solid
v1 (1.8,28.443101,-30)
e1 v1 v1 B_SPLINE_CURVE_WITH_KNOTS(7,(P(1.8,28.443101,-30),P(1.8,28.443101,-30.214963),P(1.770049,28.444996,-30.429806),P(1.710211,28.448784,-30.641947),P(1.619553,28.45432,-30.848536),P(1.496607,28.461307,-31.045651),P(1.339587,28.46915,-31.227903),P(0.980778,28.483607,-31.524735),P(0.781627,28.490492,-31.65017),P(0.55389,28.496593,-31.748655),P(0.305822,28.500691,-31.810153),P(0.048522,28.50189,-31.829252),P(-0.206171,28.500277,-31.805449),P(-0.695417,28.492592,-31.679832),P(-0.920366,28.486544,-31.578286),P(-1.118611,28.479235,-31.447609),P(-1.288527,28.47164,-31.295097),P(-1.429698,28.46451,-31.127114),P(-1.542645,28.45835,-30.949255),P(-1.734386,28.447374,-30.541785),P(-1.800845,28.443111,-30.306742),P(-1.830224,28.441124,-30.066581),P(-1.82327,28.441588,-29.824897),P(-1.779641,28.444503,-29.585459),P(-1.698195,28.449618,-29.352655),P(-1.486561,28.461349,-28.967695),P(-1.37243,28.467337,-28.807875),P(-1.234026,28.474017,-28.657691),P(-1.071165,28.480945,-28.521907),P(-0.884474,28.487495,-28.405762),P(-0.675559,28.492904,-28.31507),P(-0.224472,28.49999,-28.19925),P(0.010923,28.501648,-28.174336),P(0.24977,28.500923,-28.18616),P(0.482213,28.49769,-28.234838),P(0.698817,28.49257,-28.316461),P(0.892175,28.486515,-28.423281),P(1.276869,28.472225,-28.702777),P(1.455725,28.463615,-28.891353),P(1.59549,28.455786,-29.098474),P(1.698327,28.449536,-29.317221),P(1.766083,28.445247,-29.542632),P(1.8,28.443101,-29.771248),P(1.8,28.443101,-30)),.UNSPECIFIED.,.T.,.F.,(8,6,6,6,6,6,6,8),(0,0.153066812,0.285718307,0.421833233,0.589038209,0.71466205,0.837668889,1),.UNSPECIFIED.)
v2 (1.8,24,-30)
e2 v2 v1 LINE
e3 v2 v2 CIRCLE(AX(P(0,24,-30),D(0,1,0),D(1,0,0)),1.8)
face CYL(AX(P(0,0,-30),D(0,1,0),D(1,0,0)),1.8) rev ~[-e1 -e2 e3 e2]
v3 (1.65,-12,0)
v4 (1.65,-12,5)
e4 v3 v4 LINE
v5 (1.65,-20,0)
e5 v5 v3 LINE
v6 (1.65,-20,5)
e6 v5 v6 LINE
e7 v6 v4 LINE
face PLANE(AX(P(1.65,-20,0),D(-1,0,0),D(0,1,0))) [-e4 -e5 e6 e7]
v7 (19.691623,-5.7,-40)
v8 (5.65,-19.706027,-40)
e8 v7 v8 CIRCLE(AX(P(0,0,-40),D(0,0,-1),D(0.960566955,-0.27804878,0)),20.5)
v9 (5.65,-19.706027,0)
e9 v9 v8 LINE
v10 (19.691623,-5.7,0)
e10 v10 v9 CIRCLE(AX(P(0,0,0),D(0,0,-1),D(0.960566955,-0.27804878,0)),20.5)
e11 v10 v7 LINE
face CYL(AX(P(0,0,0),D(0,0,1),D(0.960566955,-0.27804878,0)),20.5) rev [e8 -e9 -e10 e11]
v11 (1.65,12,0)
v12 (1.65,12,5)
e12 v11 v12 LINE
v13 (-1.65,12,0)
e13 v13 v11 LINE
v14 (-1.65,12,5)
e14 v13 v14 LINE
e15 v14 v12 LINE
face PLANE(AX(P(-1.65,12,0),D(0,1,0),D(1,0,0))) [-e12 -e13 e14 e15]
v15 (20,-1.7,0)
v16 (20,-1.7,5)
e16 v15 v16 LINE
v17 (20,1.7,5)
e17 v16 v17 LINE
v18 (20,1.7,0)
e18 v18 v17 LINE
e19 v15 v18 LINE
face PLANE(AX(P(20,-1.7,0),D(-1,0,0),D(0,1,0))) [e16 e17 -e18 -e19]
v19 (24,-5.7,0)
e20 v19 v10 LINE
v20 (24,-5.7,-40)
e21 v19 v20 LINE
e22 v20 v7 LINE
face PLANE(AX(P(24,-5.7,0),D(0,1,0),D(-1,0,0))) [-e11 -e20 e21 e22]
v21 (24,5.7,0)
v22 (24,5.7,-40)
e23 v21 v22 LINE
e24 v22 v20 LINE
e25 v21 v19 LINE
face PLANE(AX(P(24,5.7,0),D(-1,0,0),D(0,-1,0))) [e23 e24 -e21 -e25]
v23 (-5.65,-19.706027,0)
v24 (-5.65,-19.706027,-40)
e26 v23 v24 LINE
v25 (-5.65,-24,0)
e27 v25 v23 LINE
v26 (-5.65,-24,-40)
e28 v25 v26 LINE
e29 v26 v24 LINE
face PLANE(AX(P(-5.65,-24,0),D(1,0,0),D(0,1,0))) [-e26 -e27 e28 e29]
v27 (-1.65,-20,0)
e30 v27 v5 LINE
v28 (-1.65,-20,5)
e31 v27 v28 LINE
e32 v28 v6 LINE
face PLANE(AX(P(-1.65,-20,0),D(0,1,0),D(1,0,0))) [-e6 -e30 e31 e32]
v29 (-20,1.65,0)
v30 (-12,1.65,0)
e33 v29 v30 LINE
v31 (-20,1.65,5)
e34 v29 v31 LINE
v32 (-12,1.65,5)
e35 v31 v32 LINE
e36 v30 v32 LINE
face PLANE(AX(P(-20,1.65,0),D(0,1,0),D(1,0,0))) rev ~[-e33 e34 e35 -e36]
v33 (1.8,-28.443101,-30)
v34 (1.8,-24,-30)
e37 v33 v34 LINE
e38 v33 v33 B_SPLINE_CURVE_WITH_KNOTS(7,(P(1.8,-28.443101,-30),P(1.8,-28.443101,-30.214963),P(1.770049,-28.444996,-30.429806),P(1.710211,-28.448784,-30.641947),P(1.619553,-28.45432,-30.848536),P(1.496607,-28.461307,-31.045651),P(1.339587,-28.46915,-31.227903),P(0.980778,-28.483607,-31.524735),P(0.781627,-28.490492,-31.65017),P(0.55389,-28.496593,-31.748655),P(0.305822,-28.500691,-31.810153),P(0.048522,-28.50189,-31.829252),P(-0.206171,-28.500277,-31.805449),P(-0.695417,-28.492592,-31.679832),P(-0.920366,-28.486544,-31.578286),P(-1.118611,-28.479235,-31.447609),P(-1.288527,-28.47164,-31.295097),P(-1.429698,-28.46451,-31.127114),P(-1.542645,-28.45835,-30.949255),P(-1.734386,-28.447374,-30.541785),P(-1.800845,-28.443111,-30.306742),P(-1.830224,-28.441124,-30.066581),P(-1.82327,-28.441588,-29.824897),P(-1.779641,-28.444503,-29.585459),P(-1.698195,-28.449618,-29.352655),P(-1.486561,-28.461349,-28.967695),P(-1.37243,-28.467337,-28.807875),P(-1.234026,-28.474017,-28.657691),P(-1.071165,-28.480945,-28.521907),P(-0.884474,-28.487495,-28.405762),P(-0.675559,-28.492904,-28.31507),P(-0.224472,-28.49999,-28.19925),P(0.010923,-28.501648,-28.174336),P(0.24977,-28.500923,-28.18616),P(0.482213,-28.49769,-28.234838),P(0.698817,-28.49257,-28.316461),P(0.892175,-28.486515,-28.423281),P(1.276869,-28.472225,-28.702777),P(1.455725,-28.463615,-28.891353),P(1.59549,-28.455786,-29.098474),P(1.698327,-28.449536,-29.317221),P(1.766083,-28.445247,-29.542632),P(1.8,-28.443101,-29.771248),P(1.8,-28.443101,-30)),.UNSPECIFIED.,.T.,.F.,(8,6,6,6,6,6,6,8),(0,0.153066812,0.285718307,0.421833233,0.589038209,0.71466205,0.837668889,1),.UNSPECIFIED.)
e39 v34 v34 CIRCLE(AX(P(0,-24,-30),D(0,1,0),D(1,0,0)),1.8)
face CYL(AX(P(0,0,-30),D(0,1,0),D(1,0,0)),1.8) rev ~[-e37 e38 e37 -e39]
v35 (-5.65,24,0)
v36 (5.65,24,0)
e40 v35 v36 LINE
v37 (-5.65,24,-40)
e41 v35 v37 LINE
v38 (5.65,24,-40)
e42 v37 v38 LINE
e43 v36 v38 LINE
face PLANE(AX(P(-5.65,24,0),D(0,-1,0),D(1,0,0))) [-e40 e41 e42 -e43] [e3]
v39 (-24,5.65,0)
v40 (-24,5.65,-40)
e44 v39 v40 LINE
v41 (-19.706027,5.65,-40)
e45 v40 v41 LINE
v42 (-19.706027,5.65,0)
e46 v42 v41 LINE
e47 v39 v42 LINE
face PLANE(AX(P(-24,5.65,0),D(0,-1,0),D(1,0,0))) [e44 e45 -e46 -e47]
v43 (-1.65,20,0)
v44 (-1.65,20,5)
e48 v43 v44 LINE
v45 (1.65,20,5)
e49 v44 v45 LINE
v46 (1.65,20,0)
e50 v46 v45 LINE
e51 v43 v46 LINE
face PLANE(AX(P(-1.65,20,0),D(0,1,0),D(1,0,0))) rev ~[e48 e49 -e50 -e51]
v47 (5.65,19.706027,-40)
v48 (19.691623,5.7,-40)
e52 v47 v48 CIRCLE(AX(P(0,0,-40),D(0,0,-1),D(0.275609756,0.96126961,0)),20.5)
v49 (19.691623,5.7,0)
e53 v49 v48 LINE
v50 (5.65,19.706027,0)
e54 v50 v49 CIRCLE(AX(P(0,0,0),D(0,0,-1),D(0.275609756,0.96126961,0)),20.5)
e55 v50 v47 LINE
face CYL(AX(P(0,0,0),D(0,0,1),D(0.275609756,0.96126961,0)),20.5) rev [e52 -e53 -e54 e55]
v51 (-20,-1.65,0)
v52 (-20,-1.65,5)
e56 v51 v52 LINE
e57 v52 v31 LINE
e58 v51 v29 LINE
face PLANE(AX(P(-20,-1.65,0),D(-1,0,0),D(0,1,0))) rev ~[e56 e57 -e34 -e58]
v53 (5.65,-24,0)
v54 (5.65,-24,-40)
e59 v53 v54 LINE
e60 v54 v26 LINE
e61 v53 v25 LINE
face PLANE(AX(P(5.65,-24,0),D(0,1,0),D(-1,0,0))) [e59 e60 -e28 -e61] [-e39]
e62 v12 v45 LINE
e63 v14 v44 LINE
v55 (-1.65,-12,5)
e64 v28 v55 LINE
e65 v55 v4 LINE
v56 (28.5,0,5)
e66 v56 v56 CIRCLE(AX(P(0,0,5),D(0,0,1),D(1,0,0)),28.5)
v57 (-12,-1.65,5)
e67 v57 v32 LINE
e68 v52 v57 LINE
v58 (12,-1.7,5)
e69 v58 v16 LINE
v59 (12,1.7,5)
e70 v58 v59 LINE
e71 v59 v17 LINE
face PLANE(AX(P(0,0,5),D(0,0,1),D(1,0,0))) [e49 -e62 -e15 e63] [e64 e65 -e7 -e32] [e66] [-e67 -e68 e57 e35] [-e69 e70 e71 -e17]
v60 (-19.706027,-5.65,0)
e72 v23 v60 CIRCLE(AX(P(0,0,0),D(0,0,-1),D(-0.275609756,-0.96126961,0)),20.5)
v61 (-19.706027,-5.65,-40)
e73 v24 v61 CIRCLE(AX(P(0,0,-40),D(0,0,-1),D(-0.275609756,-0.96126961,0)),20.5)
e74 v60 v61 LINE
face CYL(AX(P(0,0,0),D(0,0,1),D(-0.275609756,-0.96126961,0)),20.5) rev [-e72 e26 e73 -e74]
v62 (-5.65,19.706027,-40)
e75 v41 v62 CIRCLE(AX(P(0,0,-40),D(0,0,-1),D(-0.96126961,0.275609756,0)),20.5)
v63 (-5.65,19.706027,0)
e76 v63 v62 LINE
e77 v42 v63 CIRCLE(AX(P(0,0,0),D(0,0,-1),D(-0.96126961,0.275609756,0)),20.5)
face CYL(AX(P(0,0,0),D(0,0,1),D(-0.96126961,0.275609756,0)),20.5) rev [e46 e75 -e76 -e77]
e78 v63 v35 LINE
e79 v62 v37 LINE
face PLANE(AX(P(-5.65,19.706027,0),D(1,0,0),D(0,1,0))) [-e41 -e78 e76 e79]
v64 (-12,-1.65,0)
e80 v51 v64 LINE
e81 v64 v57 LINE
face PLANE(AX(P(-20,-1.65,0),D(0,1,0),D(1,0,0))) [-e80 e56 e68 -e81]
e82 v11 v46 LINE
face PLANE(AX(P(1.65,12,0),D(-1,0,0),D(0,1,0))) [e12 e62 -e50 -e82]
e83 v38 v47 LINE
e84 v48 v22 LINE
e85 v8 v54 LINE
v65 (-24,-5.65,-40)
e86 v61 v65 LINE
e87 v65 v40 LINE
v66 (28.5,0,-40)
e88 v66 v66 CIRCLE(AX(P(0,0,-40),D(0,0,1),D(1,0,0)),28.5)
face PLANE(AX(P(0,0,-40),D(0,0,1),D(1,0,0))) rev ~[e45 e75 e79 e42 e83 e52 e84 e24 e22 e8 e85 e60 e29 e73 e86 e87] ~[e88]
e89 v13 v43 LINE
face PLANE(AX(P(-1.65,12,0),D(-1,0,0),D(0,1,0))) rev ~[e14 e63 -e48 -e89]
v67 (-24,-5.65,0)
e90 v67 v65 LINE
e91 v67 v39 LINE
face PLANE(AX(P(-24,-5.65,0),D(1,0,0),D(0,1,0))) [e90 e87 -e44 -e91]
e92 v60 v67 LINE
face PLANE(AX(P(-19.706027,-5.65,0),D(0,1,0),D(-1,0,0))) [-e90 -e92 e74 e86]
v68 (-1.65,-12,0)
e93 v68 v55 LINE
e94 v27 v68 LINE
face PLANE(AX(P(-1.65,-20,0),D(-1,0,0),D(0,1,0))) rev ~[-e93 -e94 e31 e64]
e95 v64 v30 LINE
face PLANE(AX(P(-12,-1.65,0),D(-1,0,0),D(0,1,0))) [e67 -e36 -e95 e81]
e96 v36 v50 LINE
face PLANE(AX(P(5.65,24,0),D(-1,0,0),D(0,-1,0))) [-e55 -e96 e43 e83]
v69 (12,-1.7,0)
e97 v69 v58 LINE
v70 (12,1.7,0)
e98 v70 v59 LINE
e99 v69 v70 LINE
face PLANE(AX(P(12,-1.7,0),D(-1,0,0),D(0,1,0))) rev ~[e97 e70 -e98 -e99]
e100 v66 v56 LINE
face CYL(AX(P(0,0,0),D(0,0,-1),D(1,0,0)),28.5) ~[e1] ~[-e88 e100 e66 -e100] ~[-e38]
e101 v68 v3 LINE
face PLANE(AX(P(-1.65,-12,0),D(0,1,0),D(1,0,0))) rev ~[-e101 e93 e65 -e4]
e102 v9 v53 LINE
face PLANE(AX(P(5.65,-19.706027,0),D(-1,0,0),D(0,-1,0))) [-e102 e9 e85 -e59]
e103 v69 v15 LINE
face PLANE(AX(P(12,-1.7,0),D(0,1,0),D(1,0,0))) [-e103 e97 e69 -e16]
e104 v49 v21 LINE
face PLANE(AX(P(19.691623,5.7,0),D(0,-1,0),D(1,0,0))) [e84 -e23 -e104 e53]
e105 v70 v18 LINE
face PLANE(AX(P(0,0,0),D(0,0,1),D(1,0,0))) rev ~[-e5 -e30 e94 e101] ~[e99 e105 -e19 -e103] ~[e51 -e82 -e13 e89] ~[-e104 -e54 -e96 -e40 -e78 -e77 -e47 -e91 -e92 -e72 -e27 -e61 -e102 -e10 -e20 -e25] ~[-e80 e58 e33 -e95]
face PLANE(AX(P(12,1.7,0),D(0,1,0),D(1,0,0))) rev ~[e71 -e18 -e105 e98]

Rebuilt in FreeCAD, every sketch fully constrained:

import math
import FreeCAD as App
import Part
import Sketcher
from FreeCAD import Vector


def add_polygon(sketch, points):
    """Adds a closed chain of lines whose ends are joined by coincident constraints."""
    first, n = sketch.GeometryCount, len(points)
    for a, b in zip(points, points[1:] + points[:1]):
        sketch.addGeometry(Part.LineSegment(App.Vector(*a, 0), App.Vector(*b, 0)), False)
    for i in range(n):
        sketch.addConstraint(Sketcher.Constraint("Coincident", first + i, 2, first + (i + 1) % n, 1))

doc = App.newDocument("Part")
params = doc.addObject("Spreadsheet::Sheet", "Params")
for row, (alias, value) in enumerate([
    ("sketch1_diameter", "57 mm"),
    ("sketch1_width", "8 mm"),
    ("sketch1_width2", "3.3 mm"),
    ("sketch1_height", "3.4 mm"),
    ("pad1_length", "5 mm"),
    ("sketch2_diameter", "57 mm"),
    ("sketch2_radius", "20.5 mm"),
    ("sketch2_width", "11.3 mm"),
    ("sketch2_height", "11.4 mm"),
    ("pad2_length", "40 mm"),
    ("sketch3_diameter", "3.6 mm"),
    ("pocket1_length", "70 mm"),
], start=1):
    params.set(f"A{row}", alias)
    params.set(f"B{row}", "=" + value)
    params.setAlias(f"B{row}", alias)

body = doc.addObject("PartDesign::Body", "Body")

sketch1 = body.newObject("Sketcher::SketchObject", "Sketch")
sketch1.AttachmentSupport = (doc.getObject("XY_Plane"), [""])
sketch1.MapMode = "FlatFace"
sketch1.addGeometry(Part.Circle(Vector(0, 0, 0), Vector(0, 0, 1), 28.5), False)
add_polygon(sketch1, [(1.6, -20), (-1.6, -20), (-1.6, -12), (1.6, -12)])
add_polygon(sketch1, [(-12, -1.6), (-20, -1.6), (-20, 1.6), (-12, 1.6)])
add_polygon(sketch1, [(20, -1.7), (12, -1.7), (12, 1.7), (20, 1.7)])
add_polygon(sketch1, [(1.6, 12), (-1.6, 12), (-1.6, 20), (1.6, 20)])
sketch1.addConstraint([
    Sketcher.Constraint("Horizontal", 1),
    Sketcher.Constraint("Vertical", 2),
    Sketcher.Constraint("Horizontal", 3),
    Sketcher.Constraint("Vertical", 4),
    Sketcher.Constraint("Horizontal", 5),
    Sketcher.Constraint("Vertical", 6),
    Sketcher.Constraint("Horizontal", 7),
    Sketcher.Constraint("Vertical", 8),
    Sketcher.Constraint("Horizontal", 9),
    Sketcher.Constraint("Vertical", 10),
    Sketcher.Constraint("Horizontal", 11),
    Sketcher.Constraint("Vertical", 12),
    Sketcher.Constraint("Horizontal", 13),
    Sketcher.Constraint("Vertical", 14),
    Sketcher.Constraint("Horizontal", 15),
    Sketcher.Constraint("Vertical", 16),
    Sketcher.Constraint("Coincident", 0, 3, -1, 1),
    Sketcher.Constraint("Symmetric", 3, 2, 13, 2, -1, 1),
    Sketcher.Constraint("Symmetric", 1, 2, 15, 2, -1, 1),
    Sketcher.Constraint("Vertical", 2, 2, 13, 2),
    Sketcher.Constraint("Equal", 7, 9),
    Sketcher.Constraint("Equal", 11, 2),
    Sketcher.Constraint("Equal", 15, 6),
    Sketcher.Constraint("Diameter", 0, 57.0),
    Sketcher.Constraint("DistanceX", 5, 2, 5, 1, 8.0),
    Sketcher.Constraint("DistanceX", 1, 2, 1, 1, 3.3),
    Sketcher.Constraint("DistanceY", 10, 1, 10, 2, 3.4),
    Sketcher.Constraint("DistanceY", 1, 2, -1, 1, 20.0),
    Sketcher.Constraint("DistanceX", 5, 2, -1, 1, 20.0),
    Sketcher.Constraint("DistanceX", -1, 1, 9, 2, 12.0),
    Sketcher.Constraint("DistanceY", 9, 2, -1, 1, 1.7),
    Sketcher.Constraint("DistanceY", 5, 2, -1, 1, 1.65),
])
sketch1.setExpression("Constraints[39]", "Params.sketch1_diameter")
sketch1.setExpression("Constraints[40]", "Params.sketch1_width")
sketch1.setExpression("Constraints[41]", "Params.sketch1_width2")
sketch1.setExpression("Constraints[42]", "Params.sketch1_height")
pad1 = body.newObject("PartDesign::Pad", "Pad")
pad1.Profile = sketch1
pad1.setExpression("Length", "Params.pad1_length")
body2 = doc.addObject("PartDesign::Body", "Body001")

sketch2 = body2.newObject("Sketcher::SketchObject", "Sketch001")
sketch2.AttachmentSupport = (doc.getObject("XY_Plane001"), [""])
sketch2.MapMode = "FlatFace"
sketch2.addGeometry([
    Part.Circle(Vector(0, 0, 0), Vector(0, 0, 1), 28.5),
    Part.ArcOfCircle(Part.Circle(Vector(0, 0, 0), Vector(0, 0, 1), 20.5), math.radians(106), math.radians(164)),
    Part.LineSegment(Vector(-5.7, 19.7, 0), Vector(-5.7, 24, 0)),
    Part.LineSegment(Vector(-5.7, 24, 0), Vector(5.7, 24, 0)),
    Part.LineSegment(Vector(5.7, 24, 0), Vector(5.7, 19.7, 0)),
    Part.ArcOfCircle(Part.Circle(Vector(0, 0, 0), Vector(0, 0, 1), 20.5), math.radians(16), math.radians(74)),
    Part.LineSegment(Vector(19.7, 5.7, 0), Vector(24, 5.7, 0)),
    Part.LineSegment(Vector(24, 5.7, 0), Vector(24, -5.7, 0)),
    Part.LineSegment(Vector(24, -5.7, 0), Vector(19.7, -5.7, 0)),
    Part.ArcOfCircle(Part.Circle(Vector(0, 0, 0), Vector(0, 0, 1), 20.5), math.radians(-74), math.radians(-16)),
    Part.LineSegment(Vector(5.7, -19.7, 0), Vector(5.7, -24, 0)),
    Part.LineSegment(Vector(5.7, -24, 0), Vector(-5.7, -24, 0)),
    Part.LineSegment(Vector(-5.7, -24, 0), Vector(-5.7, -19.7, 0)),
    Part.ArcOfCircle(Part.Circle(Vector(0, 0, 0), Vector(0, 0, 1), 20.5), math.radians(-164), math.radians(-106)),
    Part.LineSegment(Vector(-19.7, -5.7, 0), Vector(-24, -5.7, 0)),
    Part.LineSegment(Vector(-24, -5.7, 0), Vector(-24, 5.7, 0)),
    Part.LineSegment(Vector(-24, 5.7, 0), Vector(-19.7, 5.7, 0)),
], False)
sketch2.addConstraint([
    Sketcher.Constraint("Coincident", 1, 1, 2, 1),
    Sketcher.Constraint("Coincident", 2, 2, 3, 1),
    Sketcher.Constraint("Coincident", 3, 2, 4, 1),
    Sketcher.Constraint("Coincident", 4, 2, 5, 2),
    Sketcher.Constraint("Coincident", 5, 1, 6, 1),
    Sketcher.Constraint("Coincident", 6, 2, 7, 1),
    Sketcher.Constraint("Coincident", 7, 2, 8, 1),
    Sketcher.Constraint("Coincident", 8, 2, 9, 2),
    Sketcher.Constraint("Coincident", 9, 1, 10, 1),
    Sketcher.Constraint("Coincident", 10, 2, 11, 1),
    Sketcher.Constraint("Coincident", 11, 2, 12, 1),
    Sketcher.Constraint("Coincident", 12, 2, 13, 2),
    Sketcher.Constraint("Coincident", 13, 1, 14, 1),
    Sketcher.Constraint("Coincident", 14, 2, 15, 1),
    Sketcher.Constraint("Coincident", 15, 2, 16, 1),
    Sketcher.Constraint("Coincident", 16, 2, 1, 2),
    Sketcher.Constraint("Vertical", 2),
    Sketcher.Constraint("Horizontal", 3),
    Sketcher.Constraint("Vertical", 4),
    Sketcher.Constraint("Horizontal", 6),
    Sketcher.Constraint("Vertical", 7),
    Sketcher.Constraint("Horizontal", 8),
    Sketcher.Constraint("Vertical", 10),
    Sketcher.Constraint("Horizontal", 11),
    Sketcher.Constraint("Vertical", 12),
    Sketcher.Constraint("Horizontal", 14),
    Sketcher.Constraint("Vertical", 15),
    Sketcher.Constraint("Horizontal", 16),
    Sketcher.Constraint("Coincident", 0, 3, -1, 1),
    Sketcher.Constraint("Coincident", 1, 3, -1, 1),
    Sketcher.Constraint("Coincident", 5, 3, -1, 1),
    Sketcher.Constraint("Coincident", 9, 3, -1, 1),
    Sketcher.Constraint("Coincident", 13, 3, -1, 1),
    Sketcher.Constraint("Equal", 1, 5),
    Sketcher.Constraint("Equal", 5, 9),
    Sketcher.Constraint("Equal", 9, 13),
    Sketcher.Constraint("Symmetric", 2, 2, 10, 2, -1, 1),
    Sketcher.Constraint("Horizontal", 1, 1, 4, 2),
    Sketcher.Constraint("Horizontal", 9, 1, 12, 2),
    Sketcher.Constraint("Vertical", 5, 1, 8, 2),
    Sketcher.Constraint("Vertical", 13, 1, 16, 2),
    Sketcher.Constraint("Equal", 16, 2),
    Sketcher.Constraint("Equal", 11, 15),
    Sketcher.Constraint("Diameter", 0, 57.0),
    Sketcher.Constraint("Radius", 1, 20.5),
    Sketcher.Constraint("DistanceX", 3, 1, 3, 2, 11.3),
    Sketcher.Constraint("DistanceY", 7, 2, 7, 1, 11.4),
    Sketcher.Constraint("DistanceY", -1, 1, 2, 2, 24.0),
    Sketcher.Constraint("DistanceX", -1, 1, 6, 2, 24.0),
])
sketch2.setExpression("Constraints[43]", "Params.sketch2_diameter")
sketch2.setExpression("Constraints[44]", "Params.sketch2_radius")
sketch2.setExpression("Constraints[45]", "Params.sketch2_width")
sketch2.setExpression("Constraints[46]", "Params.sketch2_height")
pad2 = body2.newObject("PartDesign::Pad", "Pad001")
pad2.Profile = sketch2
pad2.setExpression("Length", "Params.pad2_length")
pad2.Reversed = True
doc.recompute()

boolean = body2.newObject("PartDesign::Boolean", "Boolean")
boolean.Type = "Fuse"
boolean.addObjects([body])

sketch3 = body2.newObject("Sketcher::SketchObject", "Sketch002")
sketch3.AttachmentSupport = (doc.getObject("XZ_Plane001"), [""])
sketch3.MapMode = "FlatFace"
sketch3.addGeometry(Part.Circle(Vector(0, -30, 0), Vector(0, 0, 1), 1.8), False)
sketch3.addConstraint([
    Sketcher.Constraint("PointOnObject", 0, 3, -2),
    Sketcher.Constraint("Diameter", 0, 3.6),
    Sketcher.Constraint("DistanceY", 0, 3, -1, 1, 30.0),
])
sketch3.setExpression("Constraints[1]", "Params.sketch3_diameter")
pocket1 = body2.newObject("PartDesign::Pocket", "Pocket")
pocket1.Profile = sketch3
pocket1.setExpression("Length", "Params.pocket1_length")
pocket1.Midplane = True

doc.recompute()
